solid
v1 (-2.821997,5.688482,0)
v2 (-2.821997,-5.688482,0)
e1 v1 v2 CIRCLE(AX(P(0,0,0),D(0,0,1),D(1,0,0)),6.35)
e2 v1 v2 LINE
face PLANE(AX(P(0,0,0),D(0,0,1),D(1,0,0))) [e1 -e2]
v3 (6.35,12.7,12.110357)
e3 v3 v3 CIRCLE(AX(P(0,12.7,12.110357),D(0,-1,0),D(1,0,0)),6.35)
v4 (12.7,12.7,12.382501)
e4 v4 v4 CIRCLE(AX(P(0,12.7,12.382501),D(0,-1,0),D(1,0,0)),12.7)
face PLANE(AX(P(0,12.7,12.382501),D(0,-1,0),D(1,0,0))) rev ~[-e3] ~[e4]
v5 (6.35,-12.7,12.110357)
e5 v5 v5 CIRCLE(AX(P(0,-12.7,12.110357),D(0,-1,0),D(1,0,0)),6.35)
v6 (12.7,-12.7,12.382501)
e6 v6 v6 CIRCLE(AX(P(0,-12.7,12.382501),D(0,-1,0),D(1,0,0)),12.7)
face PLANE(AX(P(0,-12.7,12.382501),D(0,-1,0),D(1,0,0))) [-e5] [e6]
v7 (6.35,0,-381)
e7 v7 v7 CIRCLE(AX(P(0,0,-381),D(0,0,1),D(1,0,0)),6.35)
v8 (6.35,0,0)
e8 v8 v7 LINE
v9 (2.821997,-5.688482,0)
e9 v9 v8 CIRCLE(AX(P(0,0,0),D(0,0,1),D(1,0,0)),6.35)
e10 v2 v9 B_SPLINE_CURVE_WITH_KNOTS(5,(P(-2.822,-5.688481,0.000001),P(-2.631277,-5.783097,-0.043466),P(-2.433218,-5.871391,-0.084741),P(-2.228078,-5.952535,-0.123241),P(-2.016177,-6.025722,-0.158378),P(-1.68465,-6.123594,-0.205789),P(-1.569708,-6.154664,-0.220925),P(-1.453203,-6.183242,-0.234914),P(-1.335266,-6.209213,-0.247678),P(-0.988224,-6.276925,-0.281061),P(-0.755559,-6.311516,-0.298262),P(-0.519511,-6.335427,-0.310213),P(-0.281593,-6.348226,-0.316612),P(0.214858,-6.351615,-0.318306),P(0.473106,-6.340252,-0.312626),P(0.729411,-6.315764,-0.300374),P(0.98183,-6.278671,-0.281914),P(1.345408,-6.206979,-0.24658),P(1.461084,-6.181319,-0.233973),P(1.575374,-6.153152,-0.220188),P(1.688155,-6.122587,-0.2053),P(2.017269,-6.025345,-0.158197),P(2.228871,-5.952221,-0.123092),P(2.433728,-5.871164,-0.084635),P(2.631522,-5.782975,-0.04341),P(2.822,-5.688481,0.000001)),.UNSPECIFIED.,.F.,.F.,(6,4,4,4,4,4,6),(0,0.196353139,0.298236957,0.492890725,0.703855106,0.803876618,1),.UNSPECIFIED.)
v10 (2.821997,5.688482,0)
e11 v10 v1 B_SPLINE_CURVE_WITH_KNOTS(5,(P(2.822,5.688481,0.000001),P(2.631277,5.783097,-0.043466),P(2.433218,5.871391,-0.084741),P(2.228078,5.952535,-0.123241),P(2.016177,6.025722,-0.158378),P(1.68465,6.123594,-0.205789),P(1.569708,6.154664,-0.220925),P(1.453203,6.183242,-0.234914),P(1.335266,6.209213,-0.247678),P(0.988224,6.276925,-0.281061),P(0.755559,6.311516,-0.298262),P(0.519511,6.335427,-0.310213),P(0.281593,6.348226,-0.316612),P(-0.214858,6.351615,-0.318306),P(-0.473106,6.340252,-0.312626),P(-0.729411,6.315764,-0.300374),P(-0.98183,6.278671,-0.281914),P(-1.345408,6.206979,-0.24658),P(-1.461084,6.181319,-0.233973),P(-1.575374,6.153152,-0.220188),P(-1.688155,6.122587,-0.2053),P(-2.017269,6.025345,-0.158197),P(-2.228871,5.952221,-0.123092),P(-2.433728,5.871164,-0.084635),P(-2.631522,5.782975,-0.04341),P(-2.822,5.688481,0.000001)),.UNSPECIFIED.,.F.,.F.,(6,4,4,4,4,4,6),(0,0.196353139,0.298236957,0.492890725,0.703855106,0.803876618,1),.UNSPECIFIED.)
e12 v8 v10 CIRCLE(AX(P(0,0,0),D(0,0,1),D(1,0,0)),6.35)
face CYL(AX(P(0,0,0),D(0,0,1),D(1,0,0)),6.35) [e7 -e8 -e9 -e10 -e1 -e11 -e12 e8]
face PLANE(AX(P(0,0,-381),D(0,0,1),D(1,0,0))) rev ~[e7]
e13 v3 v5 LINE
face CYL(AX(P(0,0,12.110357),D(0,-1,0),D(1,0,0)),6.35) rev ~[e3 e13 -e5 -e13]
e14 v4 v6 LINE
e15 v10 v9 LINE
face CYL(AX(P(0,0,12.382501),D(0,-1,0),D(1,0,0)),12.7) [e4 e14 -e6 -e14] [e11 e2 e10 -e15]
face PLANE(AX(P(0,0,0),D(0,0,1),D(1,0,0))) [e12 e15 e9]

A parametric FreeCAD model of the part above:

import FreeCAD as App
import Part
import Sketcher
Q = App.Units.Quantity

doc = App.newDocument("Part")
params = doc.addObject("Spreadsheet::Sheet", "Params")
for row, (alias, value) in enumerate([
    ("sketch1_diameter", "0.5 in"),
    ("pad1_length", "15 in"),
    ("sketch2_diameter", "1 in"),
    ("pad2_length", "1 in"),
    ("sketch3_diameter", "0.5 in"),
    ("pocket1_length", "1 in"),
], start=1):
    params.set(f"A{row}", alias)
    params.set(f"B{row}", "=" + value)
    params.setAlias(f"B{row}", alias)

body = doc.addObject("PartDesign::Body", "Body")

sketch1 = doc.addObject("Sketcher::SketchObject", "Sketch")
body.addObject(sketch1)
sketch1.AttachmentSupport = (doc.XY_Plane, [""])
sketch1.MapMode = "FlatFace"
sketch1.addGeometry(Part.Circle(App.Vector(0, 0, 0), App.Vector(0, 0, 1), 6), False)
sketch1.addConstraint([
    Sketcher.Constraint("Coincident", 0, 3, -1, 1),
    Sketcher.Constraint("Diameter", 0, Q("0.5 in")),
])
sketch1.setExpression("Constraints[1]", "Params.sketch1_diameter")
pad1 = doc.addObject("PartDesign::Pad", "Pad")
body.addObject(pad1)
pad1.Profile = sketch1
pad1.setExpression("Length", "Params.pad1_length")
pad1.Reversed = True

sketch2 = doc.addObject("Sketcher::SketchObject", "Sketch001")
body.addObject(sketch2)
sketch2.AttachmentSupport = (doc.XZ_Plane, [""])
sketch2.MapMode = "FlatFace"
sketch2.addGeometry(Part.Circle(App.Vector(0, 12, 0), App.Vector(0, 0, 1), 13), False)
sketch2.addConstraint([
    Sketcher.Constraint("PointOnObject", 0, 3, -2),
    Sketcher.Constraint("Diameter", 0, Q("1 in")),
    Sketcher.Constraint("DistanceY", -1, 1, 0, 3, Q("0.4875 in")),
])
sketch2.setExpression("Constraints[1]", "Params.sketch2_diameter")
pad2 = doc.addObject("PartDesign::Pad", "Pad001")
body.addObject(pad2)
pad2.Profile = sketch2
pad2.setExpression("Length", "Params.pad2_length")
pad2.Midplane = True

sketch3 = doc.addObject("Sketcher::SketchObject", "Sketch002")
body.addObject(sketch3)
sketch3.AttachmentSupport = (doc.XZ_Plane, [""])
sketch3.MapMode = "FlatFace"
sketch3.addGeometry(Part.Circle(App.Vector(0, 12, 0), App.Vector(0, 0, 1), 6), False)
sketch3.addConstraint([
    Sketcher.Constraint("PointOnObject", 0, 3, -2),
    Sketcher.Constraint("Diameter", 0, Q("0.5 in")),
    Sketcher.Constraint("DistanceY", -1, 1, 0, 3, 12.110357),
])
sketch3.setExpression("Constraints[1]", "Params.sketch3_diameter")
pocket1 = doc.addObject("PartDesign::Pocket", "Pocket")
body.addObject(pocket1)
pocket1.Profile = sketch3
pocket1.setExpression("Length", "Params.pocket1_length")
pocket1.Midplane = True

doc.recompute()
